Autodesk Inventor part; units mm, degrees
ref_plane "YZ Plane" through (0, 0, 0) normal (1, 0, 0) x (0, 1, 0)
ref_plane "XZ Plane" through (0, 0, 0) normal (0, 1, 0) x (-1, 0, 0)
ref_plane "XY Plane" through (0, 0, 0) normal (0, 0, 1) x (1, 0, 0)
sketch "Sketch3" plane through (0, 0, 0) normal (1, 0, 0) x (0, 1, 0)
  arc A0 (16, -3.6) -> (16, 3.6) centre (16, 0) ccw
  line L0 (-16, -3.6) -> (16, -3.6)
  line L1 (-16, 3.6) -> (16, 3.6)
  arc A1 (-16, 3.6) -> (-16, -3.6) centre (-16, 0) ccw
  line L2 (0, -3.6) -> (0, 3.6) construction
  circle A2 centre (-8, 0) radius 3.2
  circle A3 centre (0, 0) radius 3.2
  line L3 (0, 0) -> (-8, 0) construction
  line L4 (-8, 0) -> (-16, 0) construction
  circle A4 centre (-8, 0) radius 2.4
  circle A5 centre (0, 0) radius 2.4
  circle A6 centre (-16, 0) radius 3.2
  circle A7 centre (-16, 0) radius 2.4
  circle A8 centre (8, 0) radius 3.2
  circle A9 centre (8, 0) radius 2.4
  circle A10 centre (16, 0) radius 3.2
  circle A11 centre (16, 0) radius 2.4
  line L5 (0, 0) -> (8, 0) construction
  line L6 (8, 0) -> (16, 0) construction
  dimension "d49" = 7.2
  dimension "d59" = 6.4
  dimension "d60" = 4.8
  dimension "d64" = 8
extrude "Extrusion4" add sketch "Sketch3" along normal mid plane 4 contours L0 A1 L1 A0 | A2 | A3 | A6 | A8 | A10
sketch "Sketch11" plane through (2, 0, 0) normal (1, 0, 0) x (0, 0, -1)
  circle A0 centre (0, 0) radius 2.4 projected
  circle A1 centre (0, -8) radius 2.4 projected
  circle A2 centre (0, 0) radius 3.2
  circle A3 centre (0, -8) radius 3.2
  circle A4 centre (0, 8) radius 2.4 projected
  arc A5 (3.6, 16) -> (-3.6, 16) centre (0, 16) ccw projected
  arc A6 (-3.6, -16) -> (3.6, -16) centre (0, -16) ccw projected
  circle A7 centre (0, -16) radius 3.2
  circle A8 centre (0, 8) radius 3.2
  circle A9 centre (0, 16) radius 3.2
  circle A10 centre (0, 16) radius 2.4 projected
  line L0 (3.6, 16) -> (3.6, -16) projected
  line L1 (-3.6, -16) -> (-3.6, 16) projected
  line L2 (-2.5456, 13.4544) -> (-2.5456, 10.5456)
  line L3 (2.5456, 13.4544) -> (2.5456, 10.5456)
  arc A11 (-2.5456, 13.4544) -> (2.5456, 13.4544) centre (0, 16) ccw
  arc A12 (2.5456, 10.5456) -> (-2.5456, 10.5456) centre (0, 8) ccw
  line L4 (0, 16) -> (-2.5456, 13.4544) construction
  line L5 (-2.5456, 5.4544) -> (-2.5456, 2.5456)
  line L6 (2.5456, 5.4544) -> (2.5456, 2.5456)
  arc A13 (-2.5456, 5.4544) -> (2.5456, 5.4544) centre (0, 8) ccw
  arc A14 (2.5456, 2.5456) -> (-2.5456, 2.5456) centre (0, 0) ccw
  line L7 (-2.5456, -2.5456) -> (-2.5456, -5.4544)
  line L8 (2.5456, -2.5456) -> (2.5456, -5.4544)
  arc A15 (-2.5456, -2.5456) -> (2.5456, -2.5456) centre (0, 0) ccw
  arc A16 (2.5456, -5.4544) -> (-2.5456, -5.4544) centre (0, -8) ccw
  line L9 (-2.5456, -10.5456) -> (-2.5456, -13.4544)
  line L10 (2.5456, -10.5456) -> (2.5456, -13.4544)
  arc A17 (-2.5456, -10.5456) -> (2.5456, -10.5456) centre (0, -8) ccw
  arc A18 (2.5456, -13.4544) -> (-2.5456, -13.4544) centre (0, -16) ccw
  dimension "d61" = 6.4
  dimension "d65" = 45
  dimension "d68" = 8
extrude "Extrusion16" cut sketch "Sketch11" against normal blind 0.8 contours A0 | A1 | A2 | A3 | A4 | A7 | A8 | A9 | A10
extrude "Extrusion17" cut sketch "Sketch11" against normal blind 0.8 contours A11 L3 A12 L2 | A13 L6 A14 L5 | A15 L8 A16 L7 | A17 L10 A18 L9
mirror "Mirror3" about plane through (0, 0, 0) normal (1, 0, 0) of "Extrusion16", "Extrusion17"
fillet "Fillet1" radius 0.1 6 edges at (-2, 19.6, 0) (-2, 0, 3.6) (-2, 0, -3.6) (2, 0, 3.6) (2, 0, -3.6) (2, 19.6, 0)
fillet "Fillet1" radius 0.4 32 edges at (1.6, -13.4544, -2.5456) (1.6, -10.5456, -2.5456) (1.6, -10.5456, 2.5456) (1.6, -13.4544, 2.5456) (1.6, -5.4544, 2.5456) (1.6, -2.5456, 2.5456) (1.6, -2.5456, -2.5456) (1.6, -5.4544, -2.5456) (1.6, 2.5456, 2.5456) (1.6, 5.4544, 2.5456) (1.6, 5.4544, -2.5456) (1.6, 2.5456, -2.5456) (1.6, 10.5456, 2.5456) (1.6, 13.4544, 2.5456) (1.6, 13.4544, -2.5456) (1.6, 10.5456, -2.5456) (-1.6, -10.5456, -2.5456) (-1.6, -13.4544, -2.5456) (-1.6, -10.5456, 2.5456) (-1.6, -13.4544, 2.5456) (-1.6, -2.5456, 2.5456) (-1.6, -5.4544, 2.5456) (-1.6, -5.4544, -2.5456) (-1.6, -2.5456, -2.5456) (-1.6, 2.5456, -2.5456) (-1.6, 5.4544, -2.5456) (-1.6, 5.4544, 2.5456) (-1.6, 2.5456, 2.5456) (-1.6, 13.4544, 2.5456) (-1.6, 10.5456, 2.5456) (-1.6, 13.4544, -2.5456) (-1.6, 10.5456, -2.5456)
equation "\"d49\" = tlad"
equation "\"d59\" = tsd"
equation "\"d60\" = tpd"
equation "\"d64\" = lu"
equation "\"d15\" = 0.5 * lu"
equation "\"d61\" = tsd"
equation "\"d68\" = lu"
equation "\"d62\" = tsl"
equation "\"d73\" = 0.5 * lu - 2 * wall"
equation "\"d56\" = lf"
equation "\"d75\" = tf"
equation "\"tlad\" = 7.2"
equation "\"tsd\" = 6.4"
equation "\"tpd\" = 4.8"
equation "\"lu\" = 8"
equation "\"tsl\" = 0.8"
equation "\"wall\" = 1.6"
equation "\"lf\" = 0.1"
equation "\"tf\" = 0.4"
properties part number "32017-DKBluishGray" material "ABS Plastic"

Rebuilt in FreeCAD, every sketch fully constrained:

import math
import FreeCAD as App
import Part
import Sketcher
Q = App.Units.Quantity


def edges_at(feature, points):
    """Names of the edges that pass closest to the given points."""
    edges = feature.Shape.Edges
    near = lambda p: min(range(len(edges)), key=lambda i: edges[i].distToShape(Part.Vertex(*p))[0])
    return sorted({f"Edge{near(p) + 1}" for p in points})

doc = App.newDocument("Part")
body = doc.addObject("PartDesign::Body", "Body")

# Sketch on YZ plane
sketch1 = doc.addObject("Sketcher::SketchObject", "Sketch")
body.addObject(sketch1)
sketch1.AttachmentSupport = (doc.YZ_Plane, [""])
sketch1.MapMode = "FlatFace"
sketch1.addGeometry([
    Part.LineSegment(App.Vector(-16, -3.6, 0), App.Vector(16, -3.6, 0)),  # 0
    Part.ArcOfCircle(Part.Circle(App.Vector(16, 0, 0), App.Vector(0, 0, 1), 3.6), math.radians(-90), math.radians(90)),  # 1
    Part.LineSegment(App.Vector(16, 3.6, 0), App.Vector(-16, 3.6, 0)),  # 2
    Part.ArcOfCircle(Part.Circle(App.Vector(-16, 0, 0), App.Vector(0, 0, 1), 3.6), math.radians(90), math.radians(270)),  # 3
    Part.Circle(App.Vector(-16, 0, 0), App.Vector(0, 0, 1), 2.4),  # 4
    Part.Circle(App.Vector(-8, 0, 0), App.Vector(0, 0, 1), 2.4),  # 5
    Part.Circle(App.Vector(0, 0, 0), App.Vector(0, 0, 1), 2.4),  # 6
    Part.Circle(App.Vector(8, 0, 0), App.Vector(0, 0, 1), 2.4),  # 7
    Part.Circle(App.Vector(16, 0, 0), App.Vector(0, 0, 1), 2.4),  # 8
], False)
sketch1.addConstraint([
    Sketcher.Constraint("Tangent", 0, 2, 1, 1),
    Sketcher.Constraint("Tangent", 1, 2, 2, 1),
    Sketcher.Constraint("Tangent", 2, 2, 3, 1),
    Sketcher.Constraint("Tangent", 3, 2, 0, 1),
    Sketcher.Constraint("Horizontal", 0),
    Sketcher.Constraint("Horizontal", 2),
    Sketcher.Constraint("Coincident", 6, 3, -1, 1),
    Sketcher.Constraint("Coincident", 4, 3, 3, 3),
    Sketcher.Constraint("Coincident", 8, 3, 1, 3),
    Sketcher.Constraint("Equal", 4, 5),
    Sketcher.Constraint("Equal", 5, 6),
    Sketcher.Constraint("Equal", 6, 7),
    Sketcher.Constraint("Equal", 7, 8),
    Sketcher.Constraint("Symmetric", 1, 3, 3, 3, -1, 1),
    Sketcher.Constraint("Symmetric", 5, 3, 7, 3, -1, 1),
    Sketcher.Constraint("PointOnObject", 5, 3, -1),
    Sketcher.Constraint("Diameter", 4, Q("4.8 mm")),
    Sketcher.Constraint("Radius", 1, Q("3.6 mm")),
    Sketcher.Constraint("DistanceX", 5, 3, -1, 1, Q("8 mm")),
    Sketcher.Constraint("DistanceX", 3, 3, 5, 3, Q("8 mm")),
])
pad1 = doc.addObject("PartDesign::Pad", "Pad")
body.addObject(pad1)
pad1.Profile = sketch1
pad1.Length = 4
pad1.Midplane = True

# Sketch on YZ plane
sketch2 = doc.addObject("Sketcher::SketchObject", "Sketch001")
body.addObject(sketch2)
sketch2.AttachmentSupport = (doc.YZ_Plane, [""])
sketch2.MapMode = "FlatFace"
sketch2.AttachmentOffset = App.Placement(App.Vector(0, 0, 2), App.Rotation())
sketch2.addGeometry([
    Part.Circle(App.Vector(0, 0, 0), App.Vector(0, 0, 1), 3.2),  # 0
    Part.Circle(App.Vector(-8, 0, 0), App.Vector(0, 0, 1), 3.2),  # 1
    Part.Circle(App.Vector(8, 0, 0), App.Vector(0, 0, 1), 3.2),  # 2
    Part.Circle(App.Vector(-16, 0, 0), App.Vector(0, 0, 1), 3.2),  # 3
    Part.Circle(App.Vector(16, 0, 0), App.Vector(0, 0, 1), 3.2),  # 4
], False)
sketch2.addConstraint([
    Sketcher.Constraint("Coincident", 0, 3, -1, 1),
    Sketcher.Constraint("Equal", 0, 1),
    Sketcher.Constraint("Equal", 1, 2),
    Sketcher.Constraint("Equal", 2, 3),
    Sketcher.Constraint("Equal", 3, 4),
    Sketcher.Constraint("Symmetric", 1, 3, 2, 3, -1, 1),
    Sketcher.Constraint("Symmetric", 3, 3, 4, 3, -1, 1),
    Sketcher.Constraint("PointOnObject", 1, 3, -1),
    Sketcher.Constraint("PointOnObject", 3, 3, -1),
    Sketcher.Constraint("Diameter", 0, Q("6.4 mm")),
    Sketcher.Constraint("DistanceX", 1, 3, -1, 1, Q("8 mm")),
    Sketcher.Constraint("DistanceX", 3, 3, 1, 3, Q("8 mm")),
])
pocket1 = doc.addObject("PartDesign::Pocket", "Pocket")
body.addObject(pocket1)
pocket1.Profile = sketch2
pocket1.Length = 0.8

# Sketch on YZ plane
sketch3 = doc.addObject("Sketcher::SketchObject", "Sketch002")
body.addObject(sketch3)
sketch3.AttachmentSupport = (doc.YZ_Plane, [""])
sketch3.MapMode = "FlatFace"
sketch3.AttachmentOffset = App.Placement(App.Vector(0, 0, 2), App.Rotation())
sketch3.addGeometry([
    Part.ArcOfCircle(Part.Circle(App.Vector(16, 0, 0), App.Vector(0, 0, 1), 3.6), math.radians(135), math.radians(225)),  # 0
    Part.LineSegment(App.Vector(13.5, 2.5, 0), App.Vector(10.5, 2.5, 0)),  # 1
    Part.ArcOfCircle(Part.Circle(App.Vector(8, 0, 0), App.Vector(0, 0, 1), 3.6), math.radians(-45), math.radians(45)),  # 2
    Part.LineSegment(App.Vector(10.5, -2.5, 0), App.Vector(13.5, -2.5, 0)),  # 3
    Part.ArcOfCircle(Part.Circle(App.Vector(8, 0, 0), App.Vector(0, 0, 1), 3.6), math.radians(135), math.radians(225)),  # 4
    Part.LineSegment(App.Vector(5.5, 2.5, 0), App.Vector(2.5, 2.5, 0)),  # 5
    Part.ArcOfCircle(Part.Circle(App.Vector(0, 0, 0), App.Vector(0, 0, 1), 3.6), math.radians(-45), math.radians(45)),  # 6
    Part.LineSegment(App.Vector(2.5, -2.5, 0), App.Vector(5.5, -2.5, 0)),  # 7
    Part.ArcOfCircle(Part.Circle(App.Vector(0, 0, 0), App.Vector(0, 0, 1), 3.6), math.radians(135), math.radians(225)),  # 8
    Part.LineSegment(App.Vector(-2.5, 2.5, 0), App.Vector(-5.5, 2.5, 0)),  # 9
    Part.ArcOfCircle(Part.Circle(App.Vector(-8, 0, 0), App.Vector(0, 0, 1), 3.6), math.radians(-45), math.radians(45)),  # 10
    Part.LineSegment(App.Vector(-5.5, -2.5, 0), App.Vector(-2.5, -2.5, 0)),  # 11
    Part.ArcOfCircle(Part.Circle(App.Vector(-8, 0, 0), App.Vector(0, 0, 1), 3.6), math.radians(135), math.radians(225)),  # 12
    Part.LineSegment(App.Vector(-10.5, 2.5, 0), App.Vector(-13.5, 2.5, 0)),  # 13
    Part.ArcOfCircle(Part.Circle(App.Vector(-16, 0, 0), App.Vector(0, 0, 1), 3.6), math.radians(-45), math.radians(45)),  # 14
    Part.LineSegment(App.Vector(-13.5, -2.5, 0), App.Vector(-10.5, -2.5, 0)),  # 15
], False)
sketch3.addConstraint([
    Sketcher.Constraint("Coincident", 0, 1, 1, 1),
    Sketcher.Constraint("Coincident", 1, 2, 2, 2),
    Sketcher.Constraint("Coincident", 2, 1, 3, 1),
    Sketcher.Constraint("Coincident", 3, 2, 0, 2),
    Sketcher.Constraint("Coincident", 4, 1, 5, 1),
    Sketcher.Constraint("Coincident", 5, 2, 6, 2),
    Sketcher.Constraint("Coincident", 6, 1, 7, 1),
    Sketcher.Constraint("Coincident", 7, 2, 4, 2),
    Sketcher.Constraint("Coincident", 8, 1, 9, 1),
    Sketcher.Constraint("Coincident", 9, 2, 10, 2),
    Sketcher.Constraint("Coincident", 10, 1, 11, 1),
    Sketcher.Constraint("Coincident", 11, 2, 8, 2),
    Sketcher.Constraint("Coincident", 12, 1, 13, 1),
    Sketcher.Constraint("Coincident", 13, 2, 14, 2),
    Sketcher.Constraint("Coincident", 14, 1, 15, 1),
    Sketcher.Constraint("Coincident", 15, 2, 12, 2),
    Sketcher.Constraint("Horizontal", 1),
    Sketcher.Constraint("Horizontal", 3),
    Sketcher.Constraint("Horizontal", 5),
    Sketcher.Constraint("Horizontal", 7),
    Sketcher.Constraint("Horizontal", 9),
    Sketcher.Constraint("Horizontal", 11),
    Sketcher.Constraint("Horizontal", 13),
    Sketcher.Constraint("Horizontal", 15),
    Sketcher.Constraint("Coincident", 6, 3, -1, 1),
    Sketcher.Constraint("Coincident", 8, 3, -1, 1),
    Sketcher.Constraint("Coincident", 4, 3, 2, 3),
    Sketcher.Constraint("Coincident", 12, 3, 10, 3),
    Sketcher.Constraint("Equal", 0, 2),
    Sketcher.Constraint("Equal", 2, 4),
    Sketcher.Constraint("Equal", 4, 6),
    Sketcher.Constraint("Equal", 6, 8),
    Sketcher.Constraint("Equal", 8, 10),
    Sketcher.Constraint("Equal", 10, 12),
    Sketcher.Constraint("Equal", 12, 14),
    Sketcher.Constraint("Symmetric", 2, 3, 10, 3, -1, 1),
    Sketcher.Constraint("Symmetric", 0, 3, 14, 3, -1, 1),
    Sketcher.Constraint("Symmetric", 4, 1, 9, 2, -2),
    Sketcher.Constraint("Symmetric", 0, 1, 13, 2, -2),
    Sketcher.Constraint("Horizontal", 1, 2, 4, 1),
    Sketcher.Constraint("Horizontal", 3, 2, 6, 1),
    Sketcher.Constraint("Horizontal", 7, 2, 10, 1),
    Sketcher.Constraint("Horizontal", 11, 2, 14, 1),
    Sketcher.Constraint("Vertical", 1, 2, 2, 1),
    Sketcher.Constraint("Equal", 3, 5),
    Sketcher.Constraint("DistanceX", -1, 1, 2, 3, Q("8 mm")),
    Sketcher.Constraint("Radius", 0, Q("3.6 mm")),
    Sketcher.Constraint("DistanceX", 1, 2, 1, 1, Q("2.9088 mm")),
])
pocket2 = doc.addObject("PartDesign::Pocket", "Pocket001")
body.addObject(pocket2)
pocket2.Profile = sketch3
pocket2.Length = 0.8
doc.recompute()

mirrored = doc.addObject("PartDesign::Mirrored", "Mirrored")
body.addObject(mirrored)
mirrored.Originals = [pocket1, pocket2]
mirrored.MirrorPlane = (doc.YZ_Plane, [""])
body.Tip = mirrored
doc.recompute()

fillet = doc.addObject("PartDesign::Fillet", "Fillet")
body.addObject(fillet)
fillet.Base = (mirrored, edges_at(mirrored, [
    (-2, 19.6, 0),
    (-2, 0, 3.6),
    (-2, 0, -3.6),
    (2, 0, 3.6),
    (2, 0, -3.6),
    (2, 19.6, 0),
]))
fillet.Radius = 0.1
doc.recompute()

fillet2 = doc.addObject("PartDesign::Fillet", "Fillet001")
body.addObject(fillet2)
fillet2.Base = (fillet, edges_at(fillet, [
    (1.6, -13.454, -2.546),
    (1.6, -10.546, -2.546),
    (1.6, -10.546, 2.546),
    (1.6, -13.454, 2.546),
    (1.6, -5.454, 2.546),
    (1.6, -2.546, 2.546),
    (1.6, -2.546, -2.546),
    (1.6, -5.454, -2.546),
    (1.6, 2.546, 2.546),
    (1.6, 5.454, 2.546),
    (1.6, 5.454, -2.546),
    (1.6, 2.546, -2.546),
    (1.6, 10.546, 2.546),
    (1.6, 13.454, 2.546),
    (1.6, 13.454, -2.546),
    (1.6, 10.546, -2.546),
    (-1.6, -10.546, -2.546),
    (-1.6, -13.454, -2.546),
    (-1.6, -10.546, 2.546),
    (-1.6, -13.454, 2.546),
    (-1.6, -2.546, 2.546),
    (-1.6, -5.454, 2.546),
    (-1.6, -5.454, -2.546),
    (-1.6, -2.546, -2.546),
    (-1.6, 2.546, -2.546),
    (-1.6, 5.454, -2.546),
    (-1.6, 5.454, 2.546),
    (-1.6, 2.546, 2.546),
    (-1.6, 13.454, 2.546),
    (-1.6, 10.546, 2.546),
    (-1.6, 13.454, -2.546),
    (-1.6, 10.546, -2.546),
]))
fillet2.Radius = 0.4

doc.recompute()
